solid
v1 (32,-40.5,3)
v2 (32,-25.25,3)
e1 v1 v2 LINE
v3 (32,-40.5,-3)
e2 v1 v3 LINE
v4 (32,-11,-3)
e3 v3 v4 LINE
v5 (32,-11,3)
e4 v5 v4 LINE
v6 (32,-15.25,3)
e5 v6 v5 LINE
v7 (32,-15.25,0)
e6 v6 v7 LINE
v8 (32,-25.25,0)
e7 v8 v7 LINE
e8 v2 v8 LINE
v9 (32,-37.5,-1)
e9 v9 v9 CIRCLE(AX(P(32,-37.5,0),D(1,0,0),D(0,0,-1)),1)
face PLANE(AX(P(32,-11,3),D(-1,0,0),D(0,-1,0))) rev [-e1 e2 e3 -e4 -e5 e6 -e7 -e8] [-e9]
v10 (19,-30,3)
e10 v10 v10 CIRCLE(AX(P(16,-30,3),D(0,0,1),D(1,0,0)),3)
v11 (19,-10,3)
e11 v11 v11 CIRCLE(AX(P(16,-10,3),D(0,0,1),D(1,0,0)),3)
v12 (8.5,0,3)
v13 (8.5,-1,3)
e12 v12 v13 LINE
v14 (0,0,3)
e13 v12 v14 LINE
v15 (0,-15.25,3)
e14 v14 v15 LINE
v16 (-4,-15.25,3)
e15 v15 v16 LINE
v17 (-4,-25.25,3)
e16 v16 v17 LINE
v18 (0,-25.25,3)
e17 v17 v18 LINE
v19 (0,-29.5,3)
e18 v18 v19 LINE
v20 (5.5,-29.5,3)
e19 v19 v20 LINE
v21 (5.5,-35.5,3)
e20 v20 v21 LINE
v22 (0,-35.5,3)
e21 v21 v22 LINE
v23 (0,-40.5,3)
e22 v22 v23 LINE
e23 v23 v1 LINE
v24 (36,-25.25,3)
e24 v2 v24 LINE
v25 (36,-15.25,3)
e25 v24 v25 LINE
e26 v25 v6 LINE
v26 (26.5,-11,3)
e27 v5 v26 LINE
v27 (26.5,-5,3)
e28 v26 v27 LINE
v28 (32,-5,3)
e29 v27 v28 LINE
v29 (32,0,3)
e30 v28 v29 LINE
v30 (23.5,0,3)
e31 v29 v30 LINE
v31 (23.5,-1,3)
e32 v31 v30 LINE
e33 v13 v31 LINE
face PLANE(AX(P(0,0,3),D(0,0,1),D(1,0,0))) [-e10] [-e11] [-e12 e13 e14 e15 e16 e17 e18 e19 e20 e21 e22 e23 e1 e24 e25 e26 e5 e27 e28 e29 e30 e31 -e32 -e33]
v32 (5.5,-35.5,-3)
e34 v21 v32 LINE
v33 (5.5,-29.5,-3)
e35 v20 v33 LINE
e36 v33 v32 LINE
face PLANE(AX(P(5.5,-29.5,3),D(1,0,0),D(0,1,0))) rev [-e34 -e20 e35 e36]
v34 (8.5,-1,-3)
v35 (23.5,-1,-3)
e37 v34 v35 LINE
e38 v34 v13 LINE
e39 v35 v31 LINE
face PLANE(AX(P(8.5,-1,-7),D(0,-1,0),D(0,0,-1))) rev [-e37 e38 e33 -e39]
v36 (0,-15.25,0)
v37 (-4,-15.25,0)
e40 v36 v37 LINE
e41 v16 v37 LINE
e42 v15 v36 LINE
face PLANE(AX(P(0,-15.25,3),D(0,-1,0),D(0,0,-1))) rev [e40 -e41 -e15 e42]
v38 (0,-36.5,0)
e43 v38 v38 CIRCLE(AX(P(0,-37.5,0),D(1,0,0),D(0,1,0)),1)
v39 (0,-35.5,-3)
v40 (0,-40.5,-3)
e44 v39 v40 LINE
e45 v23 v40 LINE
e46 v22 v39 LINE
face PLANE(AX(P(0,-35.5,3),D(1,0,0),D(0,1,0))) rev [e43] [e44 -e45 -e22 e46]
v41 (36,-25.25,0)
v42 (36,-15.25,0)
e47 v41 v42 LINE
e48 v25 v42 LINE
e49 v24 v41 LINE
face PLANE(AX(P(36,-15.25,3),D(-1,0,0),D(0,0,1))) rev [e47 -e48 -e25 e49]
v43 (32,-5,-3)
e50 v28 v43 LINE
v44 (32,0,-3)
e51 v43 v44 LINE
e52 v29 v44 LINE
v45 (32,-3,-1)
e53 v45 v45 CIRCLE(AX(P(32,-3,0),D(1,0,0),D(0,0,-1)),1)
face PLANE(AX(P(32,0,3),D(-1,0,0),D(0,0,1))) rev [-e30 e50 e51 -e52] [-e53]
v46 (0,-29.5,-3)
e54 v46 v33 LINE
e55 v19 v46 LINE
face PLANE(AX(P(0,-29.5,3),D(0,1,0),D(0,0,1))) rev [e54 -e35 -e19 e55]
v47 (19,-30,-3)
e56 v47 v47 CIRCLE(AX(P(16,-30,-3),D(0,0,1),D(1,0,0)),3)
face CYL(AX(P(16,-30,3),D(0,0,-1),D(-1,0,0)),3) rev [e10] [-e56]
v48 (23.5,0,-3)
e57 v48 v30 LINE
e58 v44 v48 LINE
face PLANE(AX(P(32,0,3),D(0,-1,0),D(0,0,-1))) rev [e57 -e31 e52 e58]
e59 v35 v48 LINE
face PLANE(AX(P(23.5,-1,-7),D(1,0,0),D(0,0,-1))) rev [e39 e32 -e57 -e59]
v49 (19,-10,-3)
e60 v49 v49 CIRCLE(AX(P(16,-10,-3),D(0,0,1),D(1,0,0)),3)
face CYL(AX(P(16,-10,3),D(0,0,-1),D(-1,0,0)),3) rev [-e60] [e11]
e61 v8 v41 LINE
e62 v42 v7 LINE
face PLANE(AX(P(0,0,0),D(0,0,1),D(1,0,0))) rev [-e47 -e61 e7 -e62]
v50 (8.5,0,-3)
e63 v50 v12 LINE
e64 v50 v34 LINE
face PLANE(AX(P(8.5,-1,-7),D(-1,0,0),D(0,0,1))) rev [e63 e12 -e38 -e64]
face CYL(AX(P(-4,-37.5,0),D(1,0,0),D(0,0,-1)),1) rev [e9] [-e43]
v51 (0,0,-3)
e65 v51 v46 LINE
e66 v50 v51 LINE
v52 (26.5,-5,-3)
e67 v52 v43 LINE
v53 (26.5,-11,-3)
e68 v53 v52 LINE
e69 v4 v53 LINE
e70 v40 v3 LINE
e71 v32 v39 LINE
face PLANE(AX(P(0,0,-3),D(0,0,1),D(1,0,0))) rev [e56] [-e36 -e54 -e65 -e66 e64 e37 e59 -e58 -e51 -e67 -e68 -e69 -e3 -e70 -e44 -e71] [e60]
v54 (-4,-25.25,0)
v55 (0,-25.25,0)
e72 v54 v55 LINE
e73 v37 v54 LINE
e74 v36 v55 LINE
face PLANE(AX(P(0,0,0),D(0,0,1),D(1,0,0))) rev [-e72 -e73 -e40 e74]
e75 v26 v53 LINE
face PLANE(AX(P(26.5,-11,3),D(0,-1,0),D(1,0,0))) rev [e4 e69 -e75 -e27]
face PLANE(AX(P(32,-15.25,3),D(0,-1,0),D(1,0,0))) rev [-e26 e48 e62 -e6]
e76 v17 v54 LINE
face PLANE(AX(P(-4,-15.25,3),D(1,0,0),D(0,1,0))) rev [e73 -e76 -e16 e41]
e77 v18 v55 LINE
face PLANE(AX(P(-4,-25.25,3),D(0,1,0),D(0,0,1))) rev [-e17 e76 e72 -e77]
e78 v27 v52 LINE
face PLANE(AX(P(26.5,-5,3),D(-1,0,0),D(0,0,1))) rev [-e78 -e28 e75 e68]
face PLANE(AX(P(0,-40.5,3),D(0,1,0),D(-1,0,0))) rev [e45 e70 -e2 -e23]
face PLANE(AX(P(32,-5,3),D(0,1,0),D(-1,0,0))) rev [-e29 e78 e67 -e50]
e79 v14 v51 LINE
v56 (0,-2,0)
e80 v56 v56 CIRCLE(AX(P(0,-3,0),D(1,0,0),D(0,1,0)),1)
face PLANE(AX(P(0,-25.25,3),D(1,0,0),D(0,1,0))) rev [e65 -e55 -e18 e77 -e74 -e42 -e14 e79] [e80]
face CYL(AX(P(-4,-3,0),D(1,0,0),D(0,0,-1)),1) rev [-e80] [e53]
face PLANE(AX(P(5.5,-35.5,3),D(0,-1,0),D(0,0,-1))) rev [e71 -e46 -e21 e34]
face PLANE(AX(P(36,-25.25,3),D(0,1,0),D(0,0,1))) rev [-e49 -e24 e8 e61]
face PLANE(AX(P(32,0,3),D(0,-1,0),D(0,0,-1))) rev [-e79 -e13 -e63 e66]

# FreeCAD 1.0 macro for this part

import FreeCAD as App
import Part
import Sketcher

V = App.Vector
Q = App.Units.Quantity

doc = App.newDocument("Part")
body = doc.addObject("PartDesign::Body", "Body")

sketch1 = doc.addObject("Sketcher::SketchObject", "Sketch")
body.addObject(sketch1)
sketch1.AttachmentSupport = (doc.XY_Plane, [""])
sketch1.MapMode = "FlatFace"
sketch1.addGeometry([
    Part.LineSegment(V(0, 0, 0), V(0, -15.2, 0)),
    Part.LineSegment(V(0, -15.2, 0), V(-4, -15.2, 0)),
    Part.LineSegment(V(-4, -15.2, 0), V(-4, -25.2, 0)),
    Part.LineSegment(V(-4, -25.2, 0), V(0, -25.2, 0)),
    Part.LineSegment(V(0, -25.2, 0), V(0, -29.5, 0)),
    Part.LineSegment(V(0, -29.5, 0), V(5.5, -29.5, 0)),
    Part.LineSegment(V(5.5, -29.5, 0), V(5.5, -35.5, 0)),
    Part.LineSegment(V(5.5, -35.5, 0), V(0, -35.5, 0)),
    Part.LineSegment(V(0, -35.5, 0), V(0, -40.5, 0)),
    Part.LineSegment(V(0, -40.5, 0), V(32, -40.5, 0)),
    Part.LineSegment(V(32, -40.5, 0), V(32, -25.2, 0)),
    Part.LineSegment(V(32, -25.2, 0), V(36, -25.2, 0)),
    Part.LineSegment(V(36, -25.2, 0), V(36, -15.2, 0)),
    Part.LineSegment(V(36, -15.2, 0), V(32, -15.2, 0)),
    Part.LineSegment(V(32, -15.2, 0), V(32, -11, 0)),
    Part.LineSegment(V(32, -11, 0), V(26.5, -11, 0)),
    Part.LineSegment(V(26.5, -11, 0), V(26.5, -5, 0)),
    Part.LineSegment(V(26.5, -5, 0), V(32, -5, 0)),
    Part.LineSegment(V(32, -5, 0), V(32, 0, 0)),
    Part.LineSegment(V(32, 0, 0), V(0, 0, 0)),
    Part.Circle(V(16, -30, 0), V(0, 0, 1), 3),
    Part.Circle(V(16, -10, 0), V(0, 0, 1), 3),
], False)
sketch1.addConstraint([
    Sketcher.Constraint("Coincident", 0, 2, 1, 1),
    Sketcher.Constraint("Coincident", 1, 2, 2, 1),
    Sketcher.Constraint("Coincident", 2, 2, 3, 1),
    Sketcher.Constraint("Coincident", 3, 2, 4, 1),
    Sketcher.Constraint("Coincident", 4, 2, 5, 1),
    Sketcher.Constraint("Coincident", 5, 2, 6, 1),
    Sketcher.Constraint("Coincident", 6, 2, 7, 1),
    Sketcher.Constraint("Coincident", 7, 2, 8, 1),
    Sketcher.Constraint("Coincident", 8, 2, 9, 1),
    Sketcher.Constraint("Coincident", 9, 2, 10, 1),
    Sketcher.Constraint("Coincident", 10, 2, 11, 1),
    Sketcher.Constraint("Coincident", 11, 2, 12, 1),
    Sketcher.Constraint("Coincident", 12, 2, 13, 1),
    Sketcher.Constraint("Coincident", 13, 2, 14, 1),
    Sketcher.Constraint("Coincident", 14, 2, 15, 1),
    Sketcher.Constraint("Coincident", 15, 2, 16, 1),
    Sketcher.Constraint("Coincident", 16, 2, 17, 1),
    Sketcher.Constraint("Coincident", 17, 2, 18, 1),
    Sketcher.Constraint("Coincident", 18, 2, 19, 1),
    Sketcher.Constraint("Coincident", 19, 2, 0, 1),
    Sketcher.Constraint("Vertical", 0),
    Sketcher.Constraint("Horizontal", 1),
    Sketcher.Constraint("Vertical", 2),
    Sketcher.Constraint("Horizontal", 3),
    Sketcher.Constraint("Vertical", 4),
    Sketcher.Constraint("Horizontal", 5),
    Sketcher.Constraint("Vertical", 6),
    Sketcher.Constraint("Horizontal", 7),
    Sketcher.Constraint("Vertical", 8),
    Sketcher.Constraint("Horizontal", 9),
    Sketcher.Constraint("Vertical", 10),
    Sketcher.Constraint("Horizontal", 11),
    Sketcher.Constraint("Vertical", 12),
    Sketcher.Constraint("Horizontal", 13),
    Sketcher.Constraint("Vertical", 14),
    Sketcher.Constraint("Horizontal", 15),
    Sketcher.Constraint("Vertical", 16),
    Sketcher.Constraint("Horizontal", 17),
    Sketcher.Constraint("Vertical", 18),
    Sketcher.Constraint("Horizontal", 19),
    Sketcher.Constraint("Coincident", 19, 2, -1, 1),
    Sketcher.Constraint("Equal", 20, 21),
    Sketcher.Constraint("PointOnObject", 3, 2, -2),
    Sketcher.Constraint("PointOnObject", 7, 2, -2),
    Sketcher.Constraint("Horizontal", 3, 2, 10, 2),
    Sketcher.Constraint("Horizontal", 1, 2, 12, 2),
    Sketcher.Constraint("Vertical", 20, 3, 21, 3),
    Sketcher.Constraint("Vertical", 10, 2, 13, 2),
    Sketcher.Constraint("Vertical", 14, 2, 17, 2),
    Sketcher.Constraint("Equal", 3, 11),
    Sketcher.Constraint("Equal", 7, 15),
    Sketcher.Constraint("Equal", 0, 10),
    Sketcher.Constraint("Equal", 4, 14),
    Sketcher.Constraint("Equal", 6, 16),
    Sketcher.Constraint("Diameter", 20, Q("6 mm")),
    Sketcher.Constraint("DistanceX", 1, 2, 1, 1, Q("4 mm")),
    Sketcher.Constraint("DistanceX", 9, 1, 9, 2, Q("32 mm")),
    Sketcher.Constraint("DistanceY", 2, 2, 2, 1, Q("10 mm")),
    Sketcher.Constraint("DistanceY", 6, 2, 6, 1, Q("6 mm")),
    Sketcher.Constraint("DistanceY", 8, 2, 8, 1, Q("5 mm")),
    Sketcher.Constraint("DistanceX", 5, 1, 5, 2, Q("5.5 mm")),
    Sketcher.Constraint("DistanceX", -1, 1, 20, 3, Q("16 mm")),
    Sketcher.Constraint("DistanceY", 20, 3, -1, 1, Q("30 mm")),
    Sketcher.Constraint("DistanceY", 21, 3, -1, 1, Q("10 mm")),
    Sketcher.Constraint("DistanceY", 0, 2, 0, 1, Q("15.25 mm")),
])
pad1 = doc.addObject("PartDesign::Pad", "Pad")
body.addObject(pad1)
pad1.Profile = sketch1
pad1.Length = 3

sketch2 = doc.addObject("Sketcher::SketchObject", "Sketch001")
body.addObject(sketch2)
sketch2.AttachmentSupport = (doc.XY_Plane, [""])
sketch2.MapMode = "FlatFace"
sketch2.AttachmentOffset = App.Placement(V(0, 0, -3), App.Rotation())
sketch2.addGeometry([
    Part.LineSegment(V(0, 0, 0), V(0, -29.5, 0)),
    Part.LineSegment(V(0, -29.5, 0), V(5.5, -29.5, 0)),
    Part.LineSegment(V(5.5, -29.5, 0), V(5.5, -35.5, 0)),
    Part.LineSegment(V(5.5, -35.5, 0), V(0, -35.5, 0)),
    Part.LineSegment(V(0, -35.5, 0), V(0, -40.5, 0)),
    Part.LineSegment(V(0, -40.5, 0), V(32, -40.5, 0)),
    Part.LineSegment(V(32, -40.5, 0), V(32, -11, 0)),
    Part.LineSegment(V(32, -11, 0), V(26.5, -11, 0)),
    Part.LineSegment(V(26.5, -11, 0), V(26.5, -5, 0)),
    Part.LineSegment(V(26.5, -5, 0), V(32, -5, 0)),
    Part.LineSegment(V(32, -5, 0), V(32, 0, 0)),
    Part.LineSegment(V(32, 0, 0), V(0, 0, 0)),
    Part.Circle(V(16, -30, 0), V(0, 0, 1), 3),
    Part.Circle(V(16, -10, 0), V(0, 0, 1), 3),
], False)
sketch2.addConstraint([
    Sketcher.Constraint("Coincident", 0, 2, 1, 1),
    Sketcher.Constraint("Coincident", 1, 2, 2, 1),
    Sketcher.Constraint("Coincident", 2, 2, 3, 1),
    Sketcher.Constraint("Coincident", 3, 2, 4, 1),
    Sketcher.Constraint("Coincident", 4, 2, 5, 1),
    Sketcher.Constraint("Coincident", 5, 2, 6, 1),
    Sketcher.Constraint("Coincident", 6, 2, 7, 1),
    Sketcher.Constraint("Coincident", 7, 2, 8, 1),
    Sketcher.Constraint("Coincident", 8, 2, 9, 1),
    Sketcher.Constraint("Coincident", 9, 2, 10, 1),
    Sketcher.Constraint("Coincident", 10, 2, 11, 1),
    Sketcher.Constraint("Coincident", 11, 2, 0, 1),
    Sketcher.Constraint("Vertical", 0),
    Sketcher.Constraint("Horizontal", 1),
    Sketcher.Constraint("Vertical", 2),
    Sketcher.Constraint("Horizontal", 3),
    Sketcher.Constraint("Vertical", 4),
    Sketcher.Constraint("Horizontal", 5),
    Sketcher.Constraint("Vertical", 6),
    Sketcher.Constraint("Horizontal", 7),
    Sketcher.Constraint("Vertical", 8),
    Sketcher.Constraint("Horizontal", 9),
    Sketcher.Constraint("Vertical", 10),
    Sketcher.Constraint("Horizontal", 11),
    Sketcher.Constraint("Coincident", 11, 2, -1, 1),
    Sketcher.Constraint("Equal", 12, 13),
    Sketcher.Constraint("PointOnObject", 3, 2, -2),
    Sketcher.Constraint("Vertical", 12, 3, 13, 3),
    Sketcher.Constraint("Vertical", 6, 2, 9, 2),
    Sketcher.Constraint("Equal", 3, 7),
    Sketcher.Constraint("Equal", 0, 6),
    Sketcher.Constraint("Equal", 2, 8),
    Sketcher.Constraint("Diameter", 12, Q("6 mm")),
    Sketcher.Constraint("DistanceX", 5, 1, 5, 2, Q("32 mm")),
    Sketcher.Constraint("DistanceY", 2, 2, 2, 1, Q("6 mm")),
    Sketcher.Constraint("DistanceY", 4, 2, 4, 1, Q("5 mm")),
    Sketcher.Constraint("DistanceX", 1, 1, 1, 2, Q("5.5 mm")),
    Sketcher.Constraint("DistanceY", 0, 2, 0, 1, Q("29.5 mm")),
    Sketcher.Constraint("DistanceX", -1, 1, 12, 3, Q("16 mm")),
    Sketcher.Constraint("DistanceY", 12, 3, -1, 1, Q("30 mm")),
    Sketcher.Constraint("DistanceY", 13, 3, -1, 1, Q("10 mm")),
])
pad2 = doc.addObject("PartDesign::Pad", "Pad001")
body.addObject(pad2)
pad2.Profile = sketch2
pad2.Length = 6

sketch3 = doc.addObject("Sketcher::SketchObject", "Sketch002")
body.addObject(sketch3)
sketch3.AttachmentSupport = (doc.YZ_Plane, [""])
sketch3.MapMode = "FlatFace"
sketch3.AttachmentOffset = App.Placement(V(0, 0, 32), App.Rotation())
sketch3.addGeometry([
    Part.Circle(V(-3, 0, 0), V(0, 0, 1), 1),
    Part.Circle(V(-37.5, 0, 0), V(0, 0, 1), 1),
], False)
sketch3.addConstraint([
    Sketcher.Constraint("Equal", 0, 1),
    Sketcher.Constraint("PointOnObject", 0, 3, -1),
    Sketcher.Constraint("PointOnObject", 1, 3, -1),
    Sketcher.Constraint("Diameter", 0, Q("2 mm")),
    Sketcher.Constraint("DistanceX", 0, 3, -1, 1, Q("3 mm")),
    Sketcher.Constraint("DistanceX", 1, 3, -1, 1, Q("37.5 mm")),
])
pocket1 = doc.addObject("PartDesign::Pocket", "Pocket")
body.addObject(pocket1)
pocket1.Profile = sketch3
pocket1.Type = "ThroughAll"

sketch4 = doc.addObject("Sketcher::SketchObject", "Sketch003")
body.addObject(sketch4)
sketch4.AttachmentSupport = (doc.XY_Plane, [""])
sketch4.MapMode = "FlatFace"
sketch4.AttachmentOffset = App.Placement(V(0, 0, 3), App.Rotation())
sketch4.addGeometry([
    Part.LineSegment(V(8.5, 0, 0), V(8.5, -1, 0)),
    Part.LineSegment(V(8.5, -1, 0), V(23.5, -1, 0)),
    Part.LineSegment(V(23.5, -1, 0), V(23.5, 0, 0)),
    Part.LineSegment(V(23.5, 0, 0), V(8.5, 0, 0)),
], False)
sketch4.addConstraint([
    Sketcher.Constraint("Coincident", 0, 2, 1, 1),
    Sketcher.Constraint("Coincident", 1, 2, 2, 1),
    Sketcher.Constraint("Coincident", 2, 2, 3, 1),
    Sketcher.Constraint("Coincident", 3, 2, 0, 1),
    Sketcher.Constraint("Vertical", 0),
    Sketcher.Constraint("Horizontal", 1),
    Sketcher.Constraint("Vertical", 2),
    Sketcher.Constraint("Horizontal", 3),
    Sketcher.Constraint("PointOnObject", 2, 2, -1),
    Sketcher.Constraint("DistanceX", 1, 1, 1, 2, Q("15 mm")),
    Sketcher.Constraint("DistanceY", 0, 2, 0, 1, Q("1 mm")),
    Sketcher.Constraint("DistanceX", -1, 1, 0, 2, Q("8.5 mm")),
])
pocket2 = doc.addObject("PartDesign::Pocket", "Pocket001")
body.addObject(pocket2)
pocket2.Profile = sketch4
pocket2.Length = 10

doc.recompute()
